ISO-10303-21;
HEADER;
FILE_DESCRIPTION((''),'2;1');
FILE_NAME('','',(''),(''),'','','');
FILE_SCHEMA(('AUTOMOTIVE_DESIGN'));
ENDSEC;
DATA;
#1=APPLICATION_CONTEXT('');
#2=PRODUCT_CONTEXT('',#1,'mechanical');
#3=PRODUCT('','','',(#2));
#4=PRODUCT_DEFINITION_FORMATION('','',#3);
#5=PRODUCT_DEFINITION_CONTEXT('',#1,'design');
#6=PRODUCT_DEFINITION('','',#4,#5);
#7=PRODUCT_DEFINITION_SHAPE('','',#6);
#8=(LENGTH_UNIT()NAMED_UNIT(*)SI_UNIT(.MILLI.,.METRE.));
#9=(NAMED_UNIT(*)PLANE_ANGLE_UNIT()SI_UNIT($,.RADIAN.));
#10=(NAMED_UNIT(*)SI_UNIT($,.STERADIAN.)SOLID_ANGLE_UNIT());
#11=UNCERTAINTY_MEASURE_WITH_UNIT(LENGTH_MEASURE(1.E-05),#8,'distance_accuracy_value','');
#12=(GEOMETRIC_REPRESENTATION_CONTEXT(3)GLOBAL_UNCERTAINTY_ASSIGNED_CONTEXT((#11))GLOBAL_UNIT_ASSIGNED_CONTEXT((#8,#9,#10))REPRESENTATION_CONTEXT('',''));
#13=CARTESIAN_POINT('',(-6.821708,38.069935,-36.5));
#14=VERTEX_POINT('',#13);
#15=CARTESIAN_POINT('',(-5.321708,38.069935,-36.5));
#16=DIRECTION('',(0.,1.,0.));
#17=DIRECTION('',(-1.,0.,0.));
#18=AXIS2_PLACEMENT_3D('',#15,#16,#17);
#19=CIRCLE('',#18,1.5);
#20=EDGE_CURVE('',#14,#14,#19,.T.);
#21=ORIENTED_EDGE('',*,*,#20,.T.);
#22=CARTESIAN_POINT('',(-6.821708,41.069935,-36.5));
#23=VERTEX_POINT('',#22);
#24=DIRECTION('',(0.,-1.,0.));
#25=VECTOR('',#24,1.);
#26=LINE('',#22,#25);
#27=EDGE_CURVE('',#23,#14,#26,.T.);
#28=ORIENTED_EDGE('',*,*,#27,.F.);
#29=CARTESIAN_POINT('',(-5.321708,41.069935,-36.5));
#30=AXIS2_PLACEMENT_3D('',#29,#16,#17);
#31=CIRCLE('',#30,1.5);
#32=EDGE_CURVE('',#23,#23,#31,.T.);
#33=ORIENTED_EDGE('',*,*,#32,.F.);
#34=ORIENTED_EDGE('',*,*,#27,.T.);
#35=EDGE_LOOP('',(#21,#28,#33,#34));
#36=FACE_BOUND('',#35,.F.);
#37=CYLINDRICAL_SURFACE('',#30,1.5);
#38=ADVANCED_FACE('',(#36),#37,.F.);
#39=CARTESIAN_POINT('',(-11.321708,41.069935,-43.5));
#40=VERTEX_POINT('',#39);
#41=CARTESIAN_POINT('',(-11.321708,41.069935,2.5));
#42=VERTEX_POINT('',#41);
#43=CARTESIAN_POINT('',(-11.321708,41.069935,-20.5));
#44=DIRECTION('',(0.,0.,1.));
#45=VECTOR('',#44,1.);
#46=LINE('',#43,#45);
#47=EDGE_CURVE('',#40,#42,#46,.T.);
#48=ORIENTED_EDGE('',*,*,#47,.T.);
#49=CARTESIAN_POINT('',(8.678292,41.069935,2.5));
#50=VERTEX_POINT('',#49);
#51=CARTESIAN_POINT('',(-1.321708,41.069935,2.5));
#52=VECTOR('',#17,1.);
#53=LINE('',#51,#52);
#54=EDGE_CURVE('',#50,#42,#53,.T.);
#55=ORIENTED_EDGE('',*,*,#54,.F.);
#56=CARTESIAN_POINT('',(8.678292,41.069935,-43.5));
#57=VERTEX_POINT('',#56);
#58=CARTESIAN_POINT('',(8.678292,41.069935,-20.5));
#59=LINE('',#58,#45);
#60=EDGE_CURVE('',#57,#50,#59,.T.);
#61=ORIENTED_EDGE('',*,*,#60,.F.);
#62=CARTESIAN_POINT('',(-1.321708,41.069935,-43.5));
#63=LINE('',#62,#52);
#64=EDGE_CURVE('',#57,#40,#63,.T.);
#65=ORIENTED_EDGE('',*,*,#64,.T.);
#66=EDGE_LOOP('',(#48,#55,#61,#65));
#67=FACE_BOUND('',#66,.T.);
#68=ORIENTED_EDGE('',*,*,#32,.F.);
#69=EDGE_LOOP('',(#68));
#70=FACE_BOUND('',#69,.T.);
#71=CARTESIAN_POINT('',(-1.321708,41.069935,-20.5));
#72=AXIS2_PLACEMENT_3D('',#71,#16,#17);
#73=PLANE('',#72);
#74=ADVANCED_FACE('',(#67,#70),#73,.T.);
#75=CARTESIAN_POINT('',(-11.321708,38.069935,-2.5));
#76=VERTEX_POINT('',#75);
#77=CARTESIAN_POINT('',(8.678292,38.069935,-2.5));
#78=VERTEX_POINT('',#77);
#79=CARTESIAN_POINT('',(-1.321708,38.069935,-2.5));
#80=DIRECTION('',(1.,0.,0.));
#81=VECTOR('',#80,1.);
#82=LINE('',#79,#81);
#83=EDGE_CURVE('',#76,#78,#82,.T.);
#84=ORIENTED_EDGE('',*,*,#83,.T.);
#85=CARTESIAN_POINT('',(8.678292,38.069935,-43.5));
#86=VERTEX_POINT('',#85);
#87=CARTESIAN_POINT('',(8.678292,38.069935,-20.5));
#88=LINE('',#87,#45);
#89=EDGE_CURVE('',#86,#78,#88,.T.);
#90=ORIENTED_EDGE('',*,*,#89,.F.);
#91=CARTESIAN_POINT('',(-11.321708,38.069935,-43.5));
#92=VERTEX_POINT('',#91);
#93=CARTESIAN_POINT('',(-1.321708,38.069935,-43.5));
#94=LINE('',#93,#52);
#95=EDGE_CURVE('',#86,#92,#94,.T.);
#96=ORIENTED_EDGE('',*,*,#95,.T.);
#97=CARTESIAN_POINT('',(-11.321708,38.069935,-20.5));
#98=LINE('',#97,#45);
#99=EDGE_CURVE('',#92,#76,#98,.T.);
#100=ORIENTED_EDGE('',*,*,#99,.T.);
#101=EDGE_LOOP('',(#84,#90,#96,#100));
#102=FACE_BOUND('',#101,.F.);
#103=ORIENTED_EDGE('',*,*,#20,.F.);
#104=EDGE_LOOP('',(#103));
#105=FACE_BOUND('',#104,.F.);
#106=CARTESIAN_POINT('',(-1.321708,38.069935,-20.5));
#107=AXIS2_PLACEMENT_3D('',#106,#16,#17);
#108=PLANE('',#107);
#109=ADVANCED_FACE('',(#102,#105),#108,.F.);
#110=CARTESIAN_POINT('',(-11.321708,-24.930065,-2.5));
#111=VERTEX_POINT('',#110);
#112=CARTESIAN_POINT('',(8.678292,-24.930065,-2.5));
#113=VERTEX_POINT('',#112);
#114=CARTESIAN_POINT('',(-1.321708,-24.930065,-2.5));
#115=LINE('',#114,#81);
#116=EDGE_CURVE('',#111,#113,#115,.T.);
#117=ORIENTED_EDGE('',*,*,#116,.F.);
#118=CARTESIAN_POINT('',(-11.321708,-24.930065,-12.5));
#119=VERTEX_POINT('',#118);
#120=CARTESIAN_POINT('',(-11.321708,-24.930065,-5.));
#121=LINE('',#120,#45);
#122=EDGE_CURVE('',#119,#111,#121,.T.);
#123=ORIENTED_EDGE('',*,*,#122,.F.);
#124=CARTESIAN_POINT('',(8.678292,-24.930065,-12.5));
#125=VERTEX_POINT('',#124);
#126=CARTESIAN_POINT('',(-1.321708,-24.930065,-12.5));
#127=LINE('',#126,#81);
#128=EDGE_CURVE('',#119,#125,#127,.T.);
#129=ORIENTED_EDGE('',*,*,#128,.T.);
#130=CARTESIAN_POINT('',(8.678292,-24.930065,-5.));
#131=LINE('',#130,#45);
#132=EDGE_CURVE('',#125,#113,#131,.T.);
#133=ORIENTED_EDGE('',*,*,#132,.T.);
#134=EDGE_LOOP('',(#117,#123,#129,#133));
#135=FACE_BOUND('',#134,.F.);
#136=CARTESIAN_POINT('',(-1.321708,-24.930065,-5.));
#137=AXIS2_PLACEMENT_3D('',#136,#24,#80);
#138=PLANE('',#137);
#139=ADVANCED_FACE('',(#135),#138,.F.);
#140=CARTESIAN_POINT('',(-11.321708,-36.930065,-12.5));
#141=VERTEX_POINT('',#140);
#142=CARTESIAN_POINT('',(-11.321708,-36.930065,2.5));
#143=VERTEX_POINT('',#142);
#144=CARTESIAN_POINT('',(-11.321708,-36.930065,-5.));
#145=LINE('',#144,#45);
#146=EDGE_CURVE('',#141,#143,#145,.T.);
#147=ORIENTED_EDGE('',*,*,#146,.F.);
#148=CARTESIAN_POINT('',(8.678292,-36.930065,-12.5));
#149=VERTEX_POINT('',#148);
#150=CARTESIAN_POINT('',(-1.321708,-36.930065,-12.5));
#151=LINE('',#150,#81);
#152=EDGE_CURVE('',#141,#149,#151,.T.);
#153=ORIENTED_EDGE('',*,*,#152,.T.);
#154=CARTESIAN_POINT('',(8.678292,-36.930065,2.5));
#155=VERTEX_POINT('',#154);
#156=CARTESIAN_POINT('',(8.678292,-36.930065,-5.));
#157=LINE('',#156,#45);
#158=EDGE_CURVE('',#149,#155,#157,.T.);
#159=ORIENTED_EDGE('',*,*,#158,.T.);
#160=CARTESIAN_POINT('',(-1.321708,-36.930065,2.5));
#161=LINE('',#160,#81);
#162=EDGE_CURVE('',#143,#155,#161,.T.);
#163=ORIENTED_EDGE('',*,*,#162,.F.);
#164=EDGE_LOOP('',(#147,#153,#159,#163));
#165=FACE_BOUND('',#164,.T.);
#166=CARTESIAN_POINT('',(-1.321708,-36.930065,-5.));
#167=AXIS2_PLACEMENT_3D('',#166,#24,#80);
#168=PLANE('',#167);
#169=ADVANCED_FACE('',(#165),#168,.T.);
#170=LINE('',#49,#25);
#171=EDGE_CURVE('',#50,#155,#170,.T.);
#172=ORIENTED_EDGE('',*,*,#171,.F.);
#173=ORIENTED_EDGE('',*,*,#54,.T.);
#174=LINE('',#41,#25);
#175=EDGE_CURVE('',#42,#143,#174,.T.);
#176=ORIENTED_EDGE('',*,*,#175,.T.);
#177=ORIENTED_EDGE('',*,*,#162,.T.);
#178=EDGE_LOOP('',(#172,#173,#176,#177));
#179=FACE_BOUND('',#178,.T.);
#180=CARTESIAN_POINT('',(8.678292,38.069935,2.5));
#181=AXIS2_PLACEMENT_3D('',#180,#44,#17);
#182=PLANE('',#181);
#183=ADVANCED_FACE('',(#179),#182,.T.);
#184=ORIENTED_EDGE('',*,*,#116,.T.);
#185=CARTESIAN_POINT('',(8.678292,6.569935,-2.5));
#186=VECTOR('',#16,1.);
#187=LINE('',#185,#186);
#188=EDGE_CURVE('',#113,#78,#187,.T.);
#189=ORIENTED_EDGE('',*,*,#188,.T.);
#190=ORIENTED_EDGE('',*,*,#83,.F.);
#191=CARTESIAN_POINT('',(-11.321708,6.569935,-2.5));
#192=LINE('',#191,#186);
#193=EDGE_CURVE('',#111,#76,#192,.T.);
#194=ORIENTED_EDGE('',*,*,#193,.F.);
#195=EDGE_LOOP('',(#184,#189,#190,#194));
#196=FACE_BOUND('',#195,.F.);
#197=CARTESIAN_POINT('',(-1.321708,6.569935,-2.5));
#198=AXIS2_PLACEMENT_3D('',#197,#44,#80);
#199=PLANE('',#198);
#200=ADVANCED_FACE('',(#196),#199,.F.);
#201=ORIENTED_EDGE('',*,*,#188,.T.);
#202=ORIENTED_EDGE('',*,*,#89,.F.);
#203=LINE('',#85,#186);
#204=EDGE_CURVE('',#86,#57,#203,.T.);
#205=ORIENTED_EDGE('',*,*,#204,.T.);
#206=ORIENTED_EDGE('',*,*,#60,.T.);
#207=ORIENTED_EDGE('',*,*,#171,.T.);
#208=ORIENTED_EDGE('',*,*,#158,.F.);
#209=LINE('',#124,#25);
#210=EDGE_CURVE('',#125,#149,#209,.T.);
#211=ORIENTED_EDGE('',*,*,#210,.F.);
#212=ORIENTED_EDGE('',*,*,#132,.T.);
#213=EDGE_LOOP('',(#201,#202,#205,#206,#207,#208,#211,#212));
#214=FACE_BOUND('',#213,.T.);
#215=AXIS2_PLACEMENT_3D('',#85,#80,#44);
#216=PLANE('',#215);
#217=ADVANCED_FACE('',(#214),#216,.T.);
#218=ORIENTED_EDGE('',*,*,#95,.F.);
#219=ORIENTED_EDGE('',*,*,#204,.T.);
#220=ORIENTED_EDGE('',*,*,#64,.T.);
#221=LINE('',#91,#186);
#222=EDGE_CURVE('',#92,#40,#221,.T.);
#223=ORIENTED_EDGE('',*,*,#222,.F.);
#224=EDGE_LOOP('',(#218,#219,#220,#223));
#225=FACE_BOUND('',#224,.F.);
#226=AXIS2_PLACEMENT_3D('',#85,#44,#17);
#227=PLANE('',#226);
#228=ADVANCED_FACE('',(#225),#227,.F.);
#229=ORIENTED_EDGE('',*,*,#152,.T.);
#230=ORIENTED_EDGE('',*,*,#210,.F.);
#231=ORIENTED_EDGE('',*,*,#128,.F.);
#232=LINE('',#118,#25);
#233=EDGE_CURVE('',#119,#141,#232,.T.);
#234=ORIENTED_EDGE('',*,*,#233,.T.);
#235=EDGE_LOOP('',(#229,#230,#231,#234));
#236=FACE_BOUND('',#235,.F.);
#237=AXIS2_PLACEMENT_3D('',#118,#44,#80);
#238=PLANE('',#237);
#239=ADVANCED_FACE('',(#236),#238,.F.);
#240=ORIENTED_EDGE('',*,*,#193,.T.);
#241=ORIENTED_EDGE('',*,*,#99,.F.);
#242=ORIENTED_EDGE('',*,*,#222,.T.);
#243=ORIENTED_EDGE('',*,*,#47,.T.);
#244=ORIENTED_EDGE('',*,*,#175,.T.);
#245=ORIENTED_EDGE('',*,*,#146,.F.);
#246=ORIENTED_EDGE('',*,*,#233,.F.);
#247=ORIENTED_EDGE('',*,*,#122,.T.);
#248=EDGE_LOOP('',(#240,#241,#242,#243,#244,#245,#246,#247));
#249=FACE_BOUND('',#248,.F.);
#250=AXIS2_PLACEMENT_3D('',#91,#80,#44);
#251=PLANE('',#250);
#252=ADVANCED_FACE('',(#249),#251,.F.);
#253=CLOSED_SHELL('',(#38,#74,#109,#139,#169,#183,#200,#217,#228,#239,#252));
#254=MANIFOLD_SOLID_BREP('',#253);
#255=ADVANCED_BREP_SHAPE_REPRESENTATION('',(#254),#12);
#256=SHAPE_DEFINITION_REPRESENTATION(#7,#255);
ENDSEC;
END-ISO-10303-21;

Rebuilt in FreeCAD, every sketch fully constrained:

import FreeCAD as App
import Part
import Sketcher


def add_polygon(sketch, points):
    """Adds a closed chain of lines whose ends are joined by coincident constraints."""
    first, n = sketch.GeometryCount, len(points)
    for a, b in zip(points, points[1:] + points[:1]):
        sketch.addGeometry(Part.LineSegment(App.Vector(*a, 0), App.Vector(*b, 0)), False)
    for i in range(n):
        sketch.addConstraint(Sketcher.Constraint("Coincident", first + i, 2, first + (i + 1) % n, 1))

doc = App.newDocument("Part")
params = doc.addObject("Spreadsheet::Sheet", "Params")
for row, (alias, value) in enumerate([
    ("sketch1_width", "20 mm"),
    ("sketch1_height", "63 mm"),
    ("pad1_length", "5 mm"),
    ("sketch2_width", "20 mm"),
    ("sketch2_height", "15 mm"),
    ("pad2_length", "12 mm"),
    ("sketch3_width", "20 mm"),
    ("sketch3_height", "46 mm"),
    ("pad3_length", "3 mm"),
    ("sketch4_diameter", "3 mm"),
    ("pocket1_length", "25 mm"),
], start=1):
    params.set(f"A{row}", alias)
    params.set(f"B{row}", "=" + value)
    params.setAlias(f"B{row}", alias)

body = doc.addObject("PartDesign::Body", "Body")

# Sketch on XY plane
sketch1 = doc.addObject("Sketcher::SketchObject", "Sketch")
body.addObject(sketch1)
sketch1.AttachmentSupport = (doc.XY_Plane, [""])
sketch1.MapMode = "FlatFace"
add_polygon(sketch1, [(-11, 38), (-11, -25), (9, -25), (9, 38)])  # lines 0-3
sketch1.addConstraint(Sketcher.Constraint("Vertical", 0))
sketch1.addConstraint(Sketcher.Constraint("Horizontal", 1))
sketch1.addConstraint(Sketcher.Constraint("Vertical", 2))
sketch1.addConstraint(Sketcher.Constraint("Horizontal", 3))
sketch1.addConstraint(Sketcher.Constraint("DistanceX", 1, 1, 1, 2, 20.0))
sketch1.addConstraint(Sketcher.Constraint("DistanceY", 0, 2, 0, 1, 63.0))
sketch1.addConstraint(Sketcher.Constraint("DistanceX", 0, 2, -1, 1, 11.321708))
sketch1.addConstraint(Sketcher.Constraint("DistanceY", 0, 2, -1, 1, 24.930065))
sketch1.setExpression("Constraints[8]", "Params.sketch1_width")
sketch1.setExpression("Constraints[9]", "Params.sketch1_height")
pad1 = doc.addObject("PartDesign::Pad", "Pad")
body.addObject(pad1)
pad1.Profile = sketch1
pad1.setExpression("Length", "Params.pad1_length")
pad1.Midplane = True

# Sketch on XZ plane
sketch2 = doc.addObject("Sketcher::SketchObject", "Sketch001")
body.addObject(sketch2)
sketch2.AttachmentSupport = (doc.XZ_Plane, [""])
sketch2.MapMode = "FlatFace"
sketch2.AttachmentOffset = App.Placement(App.Vector(0, 0, 24.930065), App.Rotation())
add_polygon(sketch2, [(-11, 2), (-11, -12), (9, -12), (9, 2)])  # lines 0-3
sketch2.addConstraint(Sketcher.Constraint("Vertical", 0))
sketch2.addConstraint(Sketcher.Constraint("Horizontal", 1))
sketch2.addConstraint(Sketcher.Constraint("Vertical", 2))
sketch2.addConstraint(Sketcher.Constraint("Horizontal", 3))
sketch2.addConstraint(Sketcher.Constraint("DistanceX", 1, 1, 1, 2, 20.0))
sketch2.addConstraint(Sketcher.Constraint("DistanceY", 0, 2, 0, 1, 15.0))
sketch2.addConstraint(Sketcher.Constraint("DistanceY", 0, 2, -1, 1, 12.5))
sketch2.addConstraint(Sketcher.Constraint("DistanceX", 0, 2, -1, 1, 11.321708))
sketch2.setExpression("Constraints[8]", "Params.sketch2_width")
sketch2.setExpression("Constraints[9]", "Params.sketch2_height")
pad2 = doc.addObject("PartDesign::Pad", "Pad001")
body.addObject(pad2)
pad2.Profile = sketch2
pad2.setExpression("Length", "Params.pad2_length")

# Sketch on XZ plane
sketch3 = doc.addObject("Sketcher::SketchObject", "Sketch002")
body.addObject(sketch3)
sketch3.AttachmentSupport = (doc.XZ_Plane, [""])
sketch3.MapMode = "FlatFace"
sketch3.AttachmentOffset = App.Placement(App.Vector(0, 0, -38.069935), App.Rotation())
add_polygon(sketch3, [(9, 2), (9, -44), (-11, -44), (-11, 2)])  # lines 0-3
sketch3.addConstraint(Sketcher.Constraint("Vertical", 0))
sketch3.addConstraint(Sketcher.Constraint("Horizontal", 1))
sketch3.addConstraint(Sketcher.Constraint("Vertical", 2))
sketch3.addConstraint(Sketcher.Constraint("Horizontal", 3))
sketch3.addConstraint(Sketcher.Constraint("DistanceX", 1, 2, 1, 1, 20.0))
sketch3.addConstraint(Sketcher.Constraint("DistanceY", 0, 2, 0, 1, 46.0))
sketch3.addConstraint(Sketcher.Constraint("DistanceY", 0, 2, -1, 1, 43.5))
sketch3.addConstraint(Sketcher.Constraint("DistanceX", -1, 1, 0, 2, 8.678292))
sketch3.setExpression("Constraints[8]", "Params.sketch3_width")
sketch3.setExpression("Constraints[9]", "Params.sketch3_height")
pad3 = doc.addObject("PartDesign::Pad", "Pad002")
body.addObject(pad3)
pad3.Profile = sketch3
pad3.setExpression("Length", "Params.pad3_length")
pad3.Reversed = True

# Sketch on XZ plane
sketch4 = doc.addObject("Sketcher::SketchObject", "Sketch003")
body.addObject(sketch4)
sketch4.AttachmentSupport = (doc.XZ_Plane, [""])
sketch4.MapMode = "FlatFace"
sketch4.AttachmentOffset = App.Placement(App.Vector(0, 0, -41.069935), App.Rotation())
sketch4.addGeometry(Part.Circle(App.Vector(-5.3, -36.5, 0), App.Vector(0, 0, 1), 1.5), False)
sketch4.addConstraint(Sketcher.Constraint("Diameter", 0, 3.0))
sketch4.addConstraint(Sketcher.Constraint("DistanceY", 0, 3, -1, 1, 36.5))
sketch4.addConstraint(Sketcher.Constraint("DistanceX", 0, 3, -1, 1, 5.321708))
sketch4.setExpression("Constraints[0]", "Params.sketch4_diameter")
pocket1 = doc.addObject("PartDesign::Pocket", "Pocket")
body.addObject(pocket1)
pocket1.Profile = sketch4
pocket1.setExpression("Length", "Params.pocket1_length")
pocket1.Reversed = True

doc.recompute()
